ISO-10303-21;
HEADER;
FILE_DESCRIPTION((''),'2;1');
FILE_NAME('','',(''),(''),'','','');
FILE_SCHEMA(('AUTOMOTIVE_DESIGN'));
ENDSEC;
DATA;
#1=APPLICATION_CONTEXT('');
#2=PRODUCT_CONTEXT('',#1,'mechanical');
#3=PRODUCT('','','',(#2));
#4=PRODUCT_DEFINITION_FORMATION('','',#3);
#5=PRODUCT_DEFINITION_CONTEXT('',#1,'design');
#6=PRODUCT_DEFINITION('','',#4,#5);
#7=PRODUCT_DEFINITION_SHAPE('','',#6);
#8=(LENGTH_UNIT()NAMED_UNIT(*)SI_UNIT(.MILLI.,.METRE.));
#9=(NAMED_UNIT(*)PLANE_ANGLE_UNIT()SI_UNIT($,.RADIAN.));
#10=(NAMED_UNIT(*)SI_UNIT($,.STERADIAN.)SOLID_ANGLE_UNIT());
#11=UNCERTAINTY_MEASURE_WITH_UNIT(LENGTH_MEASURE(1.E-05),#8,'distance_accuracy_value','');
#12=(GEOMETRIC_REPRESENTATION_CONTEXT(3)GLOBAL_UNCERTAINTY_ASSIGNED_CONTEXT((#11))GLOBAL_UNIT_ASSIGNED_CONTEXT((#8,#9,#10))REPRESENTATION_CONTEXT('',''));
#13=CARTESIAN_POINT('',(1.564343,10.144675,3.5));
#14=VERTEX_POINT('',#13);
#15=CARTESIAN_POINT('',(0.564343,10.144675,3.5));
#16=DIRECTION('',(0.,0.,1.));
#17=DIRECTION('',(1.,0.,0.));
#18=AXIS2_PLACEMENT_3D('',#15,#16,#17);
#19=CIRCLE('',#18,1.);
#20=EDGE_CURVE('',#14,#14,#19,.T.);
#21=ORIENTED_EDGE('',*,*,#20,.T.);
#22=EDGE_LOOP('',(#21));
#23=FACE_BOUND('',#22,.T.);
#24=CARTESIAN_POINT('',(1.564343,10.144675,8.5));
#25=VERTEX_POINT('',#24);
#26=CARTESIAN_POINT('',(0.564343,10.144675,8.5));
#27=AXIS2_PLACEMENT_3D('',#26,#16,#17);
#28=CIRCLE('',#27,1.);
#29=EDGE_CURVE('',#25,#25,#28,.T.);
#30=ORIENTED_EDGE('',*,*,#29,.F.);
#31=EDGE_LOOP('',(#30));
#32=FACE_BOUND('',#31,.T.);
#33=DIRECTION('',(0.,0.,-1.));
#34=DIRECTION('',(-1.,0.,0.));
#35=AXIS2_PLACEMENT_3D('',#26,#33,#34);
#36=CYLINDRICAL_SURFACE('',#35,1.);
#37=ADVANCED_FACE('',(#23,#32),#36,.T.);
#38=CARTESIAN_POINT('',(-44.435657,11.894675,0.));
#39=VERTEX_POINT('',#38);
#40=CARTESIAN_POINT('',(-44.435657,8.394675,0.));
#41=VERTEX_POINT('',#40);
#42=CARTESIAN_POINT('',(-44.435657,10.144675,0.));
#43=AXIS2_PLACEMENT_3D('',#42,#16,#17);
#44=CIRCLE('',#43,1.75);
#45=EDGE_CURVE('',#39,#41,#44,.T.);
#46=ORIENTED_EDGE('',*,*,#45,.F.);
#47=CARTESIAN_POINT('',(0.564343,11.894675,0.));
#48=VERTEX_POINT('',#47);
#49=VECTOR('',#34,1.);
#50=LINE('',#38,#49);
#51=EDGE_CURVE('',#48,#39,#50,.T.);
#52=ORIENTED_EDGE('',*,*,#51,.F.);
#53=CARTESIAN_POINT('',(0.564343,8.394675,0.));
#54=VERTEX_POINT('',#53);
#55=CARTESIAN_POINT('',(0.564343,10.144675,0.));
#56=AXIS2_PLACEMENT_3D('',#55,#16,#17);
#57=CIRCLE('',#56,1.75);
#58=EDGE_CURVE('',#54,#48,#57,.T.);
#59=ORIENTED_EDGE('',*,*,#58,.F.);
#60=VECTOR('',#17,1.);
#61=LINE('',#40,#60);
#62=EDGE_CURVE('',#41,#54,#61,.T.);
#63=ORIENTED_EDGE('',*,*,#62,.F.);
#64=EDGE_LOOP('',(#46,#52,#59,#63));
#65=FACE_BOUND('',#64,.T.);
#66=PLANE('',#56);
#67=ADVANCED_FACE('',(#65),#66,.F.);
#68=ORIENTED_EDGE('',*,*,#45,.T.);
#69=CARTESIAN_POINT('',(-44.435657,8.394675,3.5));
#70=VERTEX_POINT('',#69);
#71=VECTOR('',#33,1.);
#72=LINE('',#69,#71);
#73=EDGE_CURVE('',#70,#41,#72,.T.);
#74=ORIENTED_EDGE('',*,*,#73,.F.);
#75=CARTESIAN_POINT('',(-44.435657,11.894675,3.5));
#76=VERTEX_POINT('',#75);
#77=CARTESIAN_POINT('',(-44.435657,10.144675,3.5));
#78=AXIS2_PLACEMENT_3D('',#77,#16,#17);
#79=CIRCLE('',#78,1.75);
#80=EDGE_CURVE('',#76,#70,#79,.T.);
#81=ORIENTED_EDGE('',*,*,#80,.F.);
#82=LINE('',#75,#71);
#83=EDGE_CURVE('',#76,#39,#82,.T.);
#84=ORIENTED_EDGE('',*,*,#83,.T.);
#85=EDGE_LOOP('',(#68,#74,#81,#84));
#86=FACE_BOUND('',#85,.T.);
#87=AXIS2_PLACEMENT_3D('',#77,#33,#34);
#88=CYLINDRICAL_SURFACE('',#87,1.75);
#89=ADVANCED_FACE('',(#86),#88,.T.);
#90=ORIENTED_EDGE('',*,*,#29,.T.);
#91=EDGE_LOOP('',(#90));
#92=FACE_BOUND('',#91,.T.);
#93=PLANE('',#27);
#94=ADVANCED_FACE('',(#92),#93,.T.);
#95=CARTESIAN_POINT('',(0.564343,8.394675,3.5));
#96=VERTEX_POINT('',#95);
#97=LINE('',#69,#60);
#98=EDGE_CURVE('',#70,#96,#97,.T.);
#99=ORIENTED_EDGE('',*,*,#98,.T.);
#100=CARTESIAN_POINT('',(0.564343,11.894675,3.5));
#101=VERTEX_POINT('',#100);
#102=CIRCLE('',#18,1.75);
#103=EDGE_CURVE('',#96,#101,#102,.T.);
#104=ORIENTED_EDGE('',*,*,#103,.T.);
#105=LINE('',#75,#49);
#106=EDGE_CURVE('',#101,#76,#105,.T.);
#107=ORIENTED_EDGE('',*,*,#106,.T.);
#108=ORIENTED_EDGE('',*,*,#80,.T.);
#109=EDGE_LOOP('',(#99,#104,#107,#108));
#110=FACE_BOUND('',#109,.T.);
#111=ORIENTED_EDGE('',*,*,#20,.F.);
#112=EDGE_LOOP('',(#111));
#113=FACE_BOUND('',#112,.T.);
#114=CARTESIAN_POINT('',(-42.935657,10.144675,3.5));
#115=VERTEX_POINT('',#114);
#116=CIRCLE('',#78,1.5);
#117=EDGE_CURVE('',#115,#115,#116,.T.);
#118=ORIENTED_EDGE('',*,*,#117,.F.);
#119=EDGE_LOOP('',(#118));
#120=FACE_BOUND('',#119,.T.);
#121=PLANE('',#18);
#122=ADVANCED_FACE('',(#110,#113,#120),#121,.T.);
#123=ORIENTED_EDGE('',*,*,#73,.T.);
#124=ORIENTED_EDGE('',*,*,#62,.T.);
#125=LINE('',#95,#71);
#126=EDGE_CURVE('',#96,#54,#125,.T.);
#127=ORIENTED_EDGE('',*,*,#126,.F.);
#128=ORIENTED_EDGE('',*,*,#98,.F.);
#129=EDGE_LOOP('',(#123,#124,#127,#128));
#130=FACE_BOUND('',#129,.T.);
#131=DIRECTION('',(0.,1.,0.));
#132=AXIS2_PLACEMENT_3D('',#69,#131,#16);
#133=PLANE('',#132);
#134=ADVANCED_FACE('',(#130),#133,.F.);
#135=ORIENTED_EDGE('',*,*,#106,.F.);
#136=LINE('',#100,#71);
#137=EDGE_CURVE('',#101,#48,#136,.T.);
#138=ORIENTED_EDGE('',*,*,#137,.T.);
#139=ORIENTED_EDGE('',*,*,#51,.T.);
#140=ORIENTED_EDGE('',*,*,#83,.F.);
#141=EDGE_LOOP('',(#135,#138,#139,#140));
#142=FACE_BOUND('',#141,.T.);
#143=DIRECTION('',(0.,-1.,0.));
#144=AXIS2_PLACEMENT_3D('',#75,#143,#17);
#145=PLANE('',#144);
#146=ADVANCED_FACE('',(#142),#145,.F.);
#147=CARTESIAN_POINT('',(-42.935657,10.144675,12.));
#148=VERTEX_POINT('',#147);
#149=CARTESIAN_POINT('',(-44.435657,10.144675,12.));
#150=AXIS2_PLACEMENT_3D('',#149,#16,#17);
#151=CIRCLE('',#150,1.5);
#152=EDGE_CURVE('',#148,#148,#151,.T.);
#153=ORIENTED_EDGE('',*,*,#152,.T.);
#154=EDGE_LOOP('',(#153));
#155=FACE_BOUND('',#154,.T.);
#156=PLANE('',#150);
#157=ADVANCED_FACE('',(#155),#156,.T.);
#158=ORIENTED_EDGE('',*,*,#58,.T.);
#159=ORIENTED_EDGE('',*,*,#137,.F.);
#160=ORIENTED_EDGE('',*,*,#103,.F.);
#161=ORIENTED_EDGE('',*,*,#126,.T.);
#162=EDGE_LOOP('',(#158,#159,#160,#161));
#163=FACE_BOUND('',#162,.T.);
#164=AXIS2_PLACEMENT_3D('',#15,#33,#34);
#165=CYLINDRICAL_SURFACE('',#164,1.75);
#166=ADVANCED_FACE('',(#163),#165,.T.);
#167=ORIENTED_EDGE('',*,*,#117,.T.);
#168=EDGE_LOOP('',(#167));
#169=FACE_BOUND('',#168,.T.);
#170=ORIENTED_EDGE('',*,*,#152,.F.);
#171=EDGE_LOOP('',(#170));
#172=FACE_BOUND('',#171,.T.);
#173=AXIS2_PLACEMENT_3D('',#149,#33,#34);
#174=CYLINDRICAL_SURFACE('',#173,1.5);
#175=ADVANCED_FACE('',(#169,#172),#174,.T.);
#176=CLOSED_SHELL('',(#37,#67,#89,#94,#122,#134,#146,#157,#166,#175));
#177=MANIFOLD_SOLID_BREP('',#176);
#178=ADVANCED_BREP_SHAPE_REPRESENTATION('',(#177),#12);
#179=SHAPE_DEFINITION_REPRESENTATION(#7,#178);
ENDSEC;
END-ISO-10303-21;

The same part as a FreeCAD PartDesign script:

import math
import FreeCAD as App
import Part
import Sketcher

V = App.Vector

doc = App.newDocument("Part")
body = doc.addObject("PartDesign::Body", "Body")

sketch1 = doc.addObject("Sketcher::SketchObject", "Sketch")
body.addObject(sketch1)
sketch1.AttachmentSupport = (doc.XY_Plane, [""])
sketch1.MapMode = "FlatFace"
sketch1.addGeometry([
    Part.LineSegment(V(-44.435657, 8.394675, 0), V(0.564343, 8.394675, 0)),
    Part.ArcOfCircle(Part.Circle(V(0.564343, 10.144675, 0), V(0, 0, 1), 1.75), math.radians(-90), math.radians(90)),
    Part.LineSegment(V(0.564343, 11.894675, 0), V(-44.435657, 11.894675, 0)),
    Part.ArcOfCircle(Part.Circle(V(-44.435657, 10.144675, 0), V(0, 0, 1), 1.75), math.radians(90), math.radians(270)),
], False)
sketch1.addConstraint([
    Sketcher.Constraint("Tangent", 0, 2, 1, 1),
    Sketcher.Constraint("Tangent", 1, 2, 2, 1),
    Sketcher.Constraint("Tangent", 2, 2, 3, 1),
    Sketcher.Constraint("Tangent", 3, 2, 0, 1),
    Sketcher.Constraint("Horizontal", 0),
    Sketcher.Constraint("Horizontal", 2),
    Sketcher.Constraint("DistanceX", 0, 1, 0, 2, 45.0),
    Sketcher.Constraint("Radius", 1, 1.75),
    Sketcher.Constraint("DistanceX", -1, 1, 1, 3, 0.564343),
    Sketcher.Constraint("DistanceY", -1, 1, 1, 3, 10.144675),
])
pad1 = doc.addObject("PartDesign::Pad", "Pad")
body.addObject(pad1)
pad1.Profile = sketch1
pad1.Length = 3.5

sketch2 = doc.addObject("Sketcher::SketchObject", "Sketch001")
body.addObject(sketch2)
sketch2.AttachmentSupport = (doc.XY_Plane, [""])
sketch2.MapMode = "FlatFace"
sketch2.AttachmentOffset = App.Placement(V(0, 0, 3.5), App.Rotation())
sketch2.addGeometry(Part.Circle(V(-44.435657, 10.144675, 0), V(0, 0, 1), 1.5), False)
sketch2.addConstraint([
    Sketcher.Constraint("Diameter", 0, 3.0),
    Sketcher.Constraint("DistanceX", 0, 3, -1, 1, 44.435657),
    Sketcher.Constraint("DistanceY", -1, 1, 0, 3, 10.144675),
])
pad2 = doc.addObject("PartDesign::Pad", "Pad001")
body.addObject(pad2)
pad2.Profile = sketch2
pad2.Length = 8.5

sketch3 = doc.addObject("Sketcher::SketchObject", "Sketch002")
body.addObject(sketch3)
sketch3.AttachmentSupport = (doc.XY_Plane, [""])
sketch3.MapMode = "FlatFace"
sketch3.AttachmentOffset = App.Placement(V(0, 0, 3.5), App.Rotation())
sketch3.addGeometry(Part.Circle(V(0.564343, 10.144675, 0), V(0, 0, 1), 1), False)
sketch3.addConstraint([
    Sketcher.Constraint("Diameter", 0, 2.0),
    Sketcher.Constraint("DistanceX", -1, 1, 0, 3, 0.564343),
    Sketcher.Constraint("DistanceY", -1, 1, 0, 3, 10.144675),
])
pad3 = doc.addObject("PartDesign::Pad", "Pad002")
body.addObject(pad3)
pad3.Profile = sketch3
pad3.Length = 5

doc.recompute()
